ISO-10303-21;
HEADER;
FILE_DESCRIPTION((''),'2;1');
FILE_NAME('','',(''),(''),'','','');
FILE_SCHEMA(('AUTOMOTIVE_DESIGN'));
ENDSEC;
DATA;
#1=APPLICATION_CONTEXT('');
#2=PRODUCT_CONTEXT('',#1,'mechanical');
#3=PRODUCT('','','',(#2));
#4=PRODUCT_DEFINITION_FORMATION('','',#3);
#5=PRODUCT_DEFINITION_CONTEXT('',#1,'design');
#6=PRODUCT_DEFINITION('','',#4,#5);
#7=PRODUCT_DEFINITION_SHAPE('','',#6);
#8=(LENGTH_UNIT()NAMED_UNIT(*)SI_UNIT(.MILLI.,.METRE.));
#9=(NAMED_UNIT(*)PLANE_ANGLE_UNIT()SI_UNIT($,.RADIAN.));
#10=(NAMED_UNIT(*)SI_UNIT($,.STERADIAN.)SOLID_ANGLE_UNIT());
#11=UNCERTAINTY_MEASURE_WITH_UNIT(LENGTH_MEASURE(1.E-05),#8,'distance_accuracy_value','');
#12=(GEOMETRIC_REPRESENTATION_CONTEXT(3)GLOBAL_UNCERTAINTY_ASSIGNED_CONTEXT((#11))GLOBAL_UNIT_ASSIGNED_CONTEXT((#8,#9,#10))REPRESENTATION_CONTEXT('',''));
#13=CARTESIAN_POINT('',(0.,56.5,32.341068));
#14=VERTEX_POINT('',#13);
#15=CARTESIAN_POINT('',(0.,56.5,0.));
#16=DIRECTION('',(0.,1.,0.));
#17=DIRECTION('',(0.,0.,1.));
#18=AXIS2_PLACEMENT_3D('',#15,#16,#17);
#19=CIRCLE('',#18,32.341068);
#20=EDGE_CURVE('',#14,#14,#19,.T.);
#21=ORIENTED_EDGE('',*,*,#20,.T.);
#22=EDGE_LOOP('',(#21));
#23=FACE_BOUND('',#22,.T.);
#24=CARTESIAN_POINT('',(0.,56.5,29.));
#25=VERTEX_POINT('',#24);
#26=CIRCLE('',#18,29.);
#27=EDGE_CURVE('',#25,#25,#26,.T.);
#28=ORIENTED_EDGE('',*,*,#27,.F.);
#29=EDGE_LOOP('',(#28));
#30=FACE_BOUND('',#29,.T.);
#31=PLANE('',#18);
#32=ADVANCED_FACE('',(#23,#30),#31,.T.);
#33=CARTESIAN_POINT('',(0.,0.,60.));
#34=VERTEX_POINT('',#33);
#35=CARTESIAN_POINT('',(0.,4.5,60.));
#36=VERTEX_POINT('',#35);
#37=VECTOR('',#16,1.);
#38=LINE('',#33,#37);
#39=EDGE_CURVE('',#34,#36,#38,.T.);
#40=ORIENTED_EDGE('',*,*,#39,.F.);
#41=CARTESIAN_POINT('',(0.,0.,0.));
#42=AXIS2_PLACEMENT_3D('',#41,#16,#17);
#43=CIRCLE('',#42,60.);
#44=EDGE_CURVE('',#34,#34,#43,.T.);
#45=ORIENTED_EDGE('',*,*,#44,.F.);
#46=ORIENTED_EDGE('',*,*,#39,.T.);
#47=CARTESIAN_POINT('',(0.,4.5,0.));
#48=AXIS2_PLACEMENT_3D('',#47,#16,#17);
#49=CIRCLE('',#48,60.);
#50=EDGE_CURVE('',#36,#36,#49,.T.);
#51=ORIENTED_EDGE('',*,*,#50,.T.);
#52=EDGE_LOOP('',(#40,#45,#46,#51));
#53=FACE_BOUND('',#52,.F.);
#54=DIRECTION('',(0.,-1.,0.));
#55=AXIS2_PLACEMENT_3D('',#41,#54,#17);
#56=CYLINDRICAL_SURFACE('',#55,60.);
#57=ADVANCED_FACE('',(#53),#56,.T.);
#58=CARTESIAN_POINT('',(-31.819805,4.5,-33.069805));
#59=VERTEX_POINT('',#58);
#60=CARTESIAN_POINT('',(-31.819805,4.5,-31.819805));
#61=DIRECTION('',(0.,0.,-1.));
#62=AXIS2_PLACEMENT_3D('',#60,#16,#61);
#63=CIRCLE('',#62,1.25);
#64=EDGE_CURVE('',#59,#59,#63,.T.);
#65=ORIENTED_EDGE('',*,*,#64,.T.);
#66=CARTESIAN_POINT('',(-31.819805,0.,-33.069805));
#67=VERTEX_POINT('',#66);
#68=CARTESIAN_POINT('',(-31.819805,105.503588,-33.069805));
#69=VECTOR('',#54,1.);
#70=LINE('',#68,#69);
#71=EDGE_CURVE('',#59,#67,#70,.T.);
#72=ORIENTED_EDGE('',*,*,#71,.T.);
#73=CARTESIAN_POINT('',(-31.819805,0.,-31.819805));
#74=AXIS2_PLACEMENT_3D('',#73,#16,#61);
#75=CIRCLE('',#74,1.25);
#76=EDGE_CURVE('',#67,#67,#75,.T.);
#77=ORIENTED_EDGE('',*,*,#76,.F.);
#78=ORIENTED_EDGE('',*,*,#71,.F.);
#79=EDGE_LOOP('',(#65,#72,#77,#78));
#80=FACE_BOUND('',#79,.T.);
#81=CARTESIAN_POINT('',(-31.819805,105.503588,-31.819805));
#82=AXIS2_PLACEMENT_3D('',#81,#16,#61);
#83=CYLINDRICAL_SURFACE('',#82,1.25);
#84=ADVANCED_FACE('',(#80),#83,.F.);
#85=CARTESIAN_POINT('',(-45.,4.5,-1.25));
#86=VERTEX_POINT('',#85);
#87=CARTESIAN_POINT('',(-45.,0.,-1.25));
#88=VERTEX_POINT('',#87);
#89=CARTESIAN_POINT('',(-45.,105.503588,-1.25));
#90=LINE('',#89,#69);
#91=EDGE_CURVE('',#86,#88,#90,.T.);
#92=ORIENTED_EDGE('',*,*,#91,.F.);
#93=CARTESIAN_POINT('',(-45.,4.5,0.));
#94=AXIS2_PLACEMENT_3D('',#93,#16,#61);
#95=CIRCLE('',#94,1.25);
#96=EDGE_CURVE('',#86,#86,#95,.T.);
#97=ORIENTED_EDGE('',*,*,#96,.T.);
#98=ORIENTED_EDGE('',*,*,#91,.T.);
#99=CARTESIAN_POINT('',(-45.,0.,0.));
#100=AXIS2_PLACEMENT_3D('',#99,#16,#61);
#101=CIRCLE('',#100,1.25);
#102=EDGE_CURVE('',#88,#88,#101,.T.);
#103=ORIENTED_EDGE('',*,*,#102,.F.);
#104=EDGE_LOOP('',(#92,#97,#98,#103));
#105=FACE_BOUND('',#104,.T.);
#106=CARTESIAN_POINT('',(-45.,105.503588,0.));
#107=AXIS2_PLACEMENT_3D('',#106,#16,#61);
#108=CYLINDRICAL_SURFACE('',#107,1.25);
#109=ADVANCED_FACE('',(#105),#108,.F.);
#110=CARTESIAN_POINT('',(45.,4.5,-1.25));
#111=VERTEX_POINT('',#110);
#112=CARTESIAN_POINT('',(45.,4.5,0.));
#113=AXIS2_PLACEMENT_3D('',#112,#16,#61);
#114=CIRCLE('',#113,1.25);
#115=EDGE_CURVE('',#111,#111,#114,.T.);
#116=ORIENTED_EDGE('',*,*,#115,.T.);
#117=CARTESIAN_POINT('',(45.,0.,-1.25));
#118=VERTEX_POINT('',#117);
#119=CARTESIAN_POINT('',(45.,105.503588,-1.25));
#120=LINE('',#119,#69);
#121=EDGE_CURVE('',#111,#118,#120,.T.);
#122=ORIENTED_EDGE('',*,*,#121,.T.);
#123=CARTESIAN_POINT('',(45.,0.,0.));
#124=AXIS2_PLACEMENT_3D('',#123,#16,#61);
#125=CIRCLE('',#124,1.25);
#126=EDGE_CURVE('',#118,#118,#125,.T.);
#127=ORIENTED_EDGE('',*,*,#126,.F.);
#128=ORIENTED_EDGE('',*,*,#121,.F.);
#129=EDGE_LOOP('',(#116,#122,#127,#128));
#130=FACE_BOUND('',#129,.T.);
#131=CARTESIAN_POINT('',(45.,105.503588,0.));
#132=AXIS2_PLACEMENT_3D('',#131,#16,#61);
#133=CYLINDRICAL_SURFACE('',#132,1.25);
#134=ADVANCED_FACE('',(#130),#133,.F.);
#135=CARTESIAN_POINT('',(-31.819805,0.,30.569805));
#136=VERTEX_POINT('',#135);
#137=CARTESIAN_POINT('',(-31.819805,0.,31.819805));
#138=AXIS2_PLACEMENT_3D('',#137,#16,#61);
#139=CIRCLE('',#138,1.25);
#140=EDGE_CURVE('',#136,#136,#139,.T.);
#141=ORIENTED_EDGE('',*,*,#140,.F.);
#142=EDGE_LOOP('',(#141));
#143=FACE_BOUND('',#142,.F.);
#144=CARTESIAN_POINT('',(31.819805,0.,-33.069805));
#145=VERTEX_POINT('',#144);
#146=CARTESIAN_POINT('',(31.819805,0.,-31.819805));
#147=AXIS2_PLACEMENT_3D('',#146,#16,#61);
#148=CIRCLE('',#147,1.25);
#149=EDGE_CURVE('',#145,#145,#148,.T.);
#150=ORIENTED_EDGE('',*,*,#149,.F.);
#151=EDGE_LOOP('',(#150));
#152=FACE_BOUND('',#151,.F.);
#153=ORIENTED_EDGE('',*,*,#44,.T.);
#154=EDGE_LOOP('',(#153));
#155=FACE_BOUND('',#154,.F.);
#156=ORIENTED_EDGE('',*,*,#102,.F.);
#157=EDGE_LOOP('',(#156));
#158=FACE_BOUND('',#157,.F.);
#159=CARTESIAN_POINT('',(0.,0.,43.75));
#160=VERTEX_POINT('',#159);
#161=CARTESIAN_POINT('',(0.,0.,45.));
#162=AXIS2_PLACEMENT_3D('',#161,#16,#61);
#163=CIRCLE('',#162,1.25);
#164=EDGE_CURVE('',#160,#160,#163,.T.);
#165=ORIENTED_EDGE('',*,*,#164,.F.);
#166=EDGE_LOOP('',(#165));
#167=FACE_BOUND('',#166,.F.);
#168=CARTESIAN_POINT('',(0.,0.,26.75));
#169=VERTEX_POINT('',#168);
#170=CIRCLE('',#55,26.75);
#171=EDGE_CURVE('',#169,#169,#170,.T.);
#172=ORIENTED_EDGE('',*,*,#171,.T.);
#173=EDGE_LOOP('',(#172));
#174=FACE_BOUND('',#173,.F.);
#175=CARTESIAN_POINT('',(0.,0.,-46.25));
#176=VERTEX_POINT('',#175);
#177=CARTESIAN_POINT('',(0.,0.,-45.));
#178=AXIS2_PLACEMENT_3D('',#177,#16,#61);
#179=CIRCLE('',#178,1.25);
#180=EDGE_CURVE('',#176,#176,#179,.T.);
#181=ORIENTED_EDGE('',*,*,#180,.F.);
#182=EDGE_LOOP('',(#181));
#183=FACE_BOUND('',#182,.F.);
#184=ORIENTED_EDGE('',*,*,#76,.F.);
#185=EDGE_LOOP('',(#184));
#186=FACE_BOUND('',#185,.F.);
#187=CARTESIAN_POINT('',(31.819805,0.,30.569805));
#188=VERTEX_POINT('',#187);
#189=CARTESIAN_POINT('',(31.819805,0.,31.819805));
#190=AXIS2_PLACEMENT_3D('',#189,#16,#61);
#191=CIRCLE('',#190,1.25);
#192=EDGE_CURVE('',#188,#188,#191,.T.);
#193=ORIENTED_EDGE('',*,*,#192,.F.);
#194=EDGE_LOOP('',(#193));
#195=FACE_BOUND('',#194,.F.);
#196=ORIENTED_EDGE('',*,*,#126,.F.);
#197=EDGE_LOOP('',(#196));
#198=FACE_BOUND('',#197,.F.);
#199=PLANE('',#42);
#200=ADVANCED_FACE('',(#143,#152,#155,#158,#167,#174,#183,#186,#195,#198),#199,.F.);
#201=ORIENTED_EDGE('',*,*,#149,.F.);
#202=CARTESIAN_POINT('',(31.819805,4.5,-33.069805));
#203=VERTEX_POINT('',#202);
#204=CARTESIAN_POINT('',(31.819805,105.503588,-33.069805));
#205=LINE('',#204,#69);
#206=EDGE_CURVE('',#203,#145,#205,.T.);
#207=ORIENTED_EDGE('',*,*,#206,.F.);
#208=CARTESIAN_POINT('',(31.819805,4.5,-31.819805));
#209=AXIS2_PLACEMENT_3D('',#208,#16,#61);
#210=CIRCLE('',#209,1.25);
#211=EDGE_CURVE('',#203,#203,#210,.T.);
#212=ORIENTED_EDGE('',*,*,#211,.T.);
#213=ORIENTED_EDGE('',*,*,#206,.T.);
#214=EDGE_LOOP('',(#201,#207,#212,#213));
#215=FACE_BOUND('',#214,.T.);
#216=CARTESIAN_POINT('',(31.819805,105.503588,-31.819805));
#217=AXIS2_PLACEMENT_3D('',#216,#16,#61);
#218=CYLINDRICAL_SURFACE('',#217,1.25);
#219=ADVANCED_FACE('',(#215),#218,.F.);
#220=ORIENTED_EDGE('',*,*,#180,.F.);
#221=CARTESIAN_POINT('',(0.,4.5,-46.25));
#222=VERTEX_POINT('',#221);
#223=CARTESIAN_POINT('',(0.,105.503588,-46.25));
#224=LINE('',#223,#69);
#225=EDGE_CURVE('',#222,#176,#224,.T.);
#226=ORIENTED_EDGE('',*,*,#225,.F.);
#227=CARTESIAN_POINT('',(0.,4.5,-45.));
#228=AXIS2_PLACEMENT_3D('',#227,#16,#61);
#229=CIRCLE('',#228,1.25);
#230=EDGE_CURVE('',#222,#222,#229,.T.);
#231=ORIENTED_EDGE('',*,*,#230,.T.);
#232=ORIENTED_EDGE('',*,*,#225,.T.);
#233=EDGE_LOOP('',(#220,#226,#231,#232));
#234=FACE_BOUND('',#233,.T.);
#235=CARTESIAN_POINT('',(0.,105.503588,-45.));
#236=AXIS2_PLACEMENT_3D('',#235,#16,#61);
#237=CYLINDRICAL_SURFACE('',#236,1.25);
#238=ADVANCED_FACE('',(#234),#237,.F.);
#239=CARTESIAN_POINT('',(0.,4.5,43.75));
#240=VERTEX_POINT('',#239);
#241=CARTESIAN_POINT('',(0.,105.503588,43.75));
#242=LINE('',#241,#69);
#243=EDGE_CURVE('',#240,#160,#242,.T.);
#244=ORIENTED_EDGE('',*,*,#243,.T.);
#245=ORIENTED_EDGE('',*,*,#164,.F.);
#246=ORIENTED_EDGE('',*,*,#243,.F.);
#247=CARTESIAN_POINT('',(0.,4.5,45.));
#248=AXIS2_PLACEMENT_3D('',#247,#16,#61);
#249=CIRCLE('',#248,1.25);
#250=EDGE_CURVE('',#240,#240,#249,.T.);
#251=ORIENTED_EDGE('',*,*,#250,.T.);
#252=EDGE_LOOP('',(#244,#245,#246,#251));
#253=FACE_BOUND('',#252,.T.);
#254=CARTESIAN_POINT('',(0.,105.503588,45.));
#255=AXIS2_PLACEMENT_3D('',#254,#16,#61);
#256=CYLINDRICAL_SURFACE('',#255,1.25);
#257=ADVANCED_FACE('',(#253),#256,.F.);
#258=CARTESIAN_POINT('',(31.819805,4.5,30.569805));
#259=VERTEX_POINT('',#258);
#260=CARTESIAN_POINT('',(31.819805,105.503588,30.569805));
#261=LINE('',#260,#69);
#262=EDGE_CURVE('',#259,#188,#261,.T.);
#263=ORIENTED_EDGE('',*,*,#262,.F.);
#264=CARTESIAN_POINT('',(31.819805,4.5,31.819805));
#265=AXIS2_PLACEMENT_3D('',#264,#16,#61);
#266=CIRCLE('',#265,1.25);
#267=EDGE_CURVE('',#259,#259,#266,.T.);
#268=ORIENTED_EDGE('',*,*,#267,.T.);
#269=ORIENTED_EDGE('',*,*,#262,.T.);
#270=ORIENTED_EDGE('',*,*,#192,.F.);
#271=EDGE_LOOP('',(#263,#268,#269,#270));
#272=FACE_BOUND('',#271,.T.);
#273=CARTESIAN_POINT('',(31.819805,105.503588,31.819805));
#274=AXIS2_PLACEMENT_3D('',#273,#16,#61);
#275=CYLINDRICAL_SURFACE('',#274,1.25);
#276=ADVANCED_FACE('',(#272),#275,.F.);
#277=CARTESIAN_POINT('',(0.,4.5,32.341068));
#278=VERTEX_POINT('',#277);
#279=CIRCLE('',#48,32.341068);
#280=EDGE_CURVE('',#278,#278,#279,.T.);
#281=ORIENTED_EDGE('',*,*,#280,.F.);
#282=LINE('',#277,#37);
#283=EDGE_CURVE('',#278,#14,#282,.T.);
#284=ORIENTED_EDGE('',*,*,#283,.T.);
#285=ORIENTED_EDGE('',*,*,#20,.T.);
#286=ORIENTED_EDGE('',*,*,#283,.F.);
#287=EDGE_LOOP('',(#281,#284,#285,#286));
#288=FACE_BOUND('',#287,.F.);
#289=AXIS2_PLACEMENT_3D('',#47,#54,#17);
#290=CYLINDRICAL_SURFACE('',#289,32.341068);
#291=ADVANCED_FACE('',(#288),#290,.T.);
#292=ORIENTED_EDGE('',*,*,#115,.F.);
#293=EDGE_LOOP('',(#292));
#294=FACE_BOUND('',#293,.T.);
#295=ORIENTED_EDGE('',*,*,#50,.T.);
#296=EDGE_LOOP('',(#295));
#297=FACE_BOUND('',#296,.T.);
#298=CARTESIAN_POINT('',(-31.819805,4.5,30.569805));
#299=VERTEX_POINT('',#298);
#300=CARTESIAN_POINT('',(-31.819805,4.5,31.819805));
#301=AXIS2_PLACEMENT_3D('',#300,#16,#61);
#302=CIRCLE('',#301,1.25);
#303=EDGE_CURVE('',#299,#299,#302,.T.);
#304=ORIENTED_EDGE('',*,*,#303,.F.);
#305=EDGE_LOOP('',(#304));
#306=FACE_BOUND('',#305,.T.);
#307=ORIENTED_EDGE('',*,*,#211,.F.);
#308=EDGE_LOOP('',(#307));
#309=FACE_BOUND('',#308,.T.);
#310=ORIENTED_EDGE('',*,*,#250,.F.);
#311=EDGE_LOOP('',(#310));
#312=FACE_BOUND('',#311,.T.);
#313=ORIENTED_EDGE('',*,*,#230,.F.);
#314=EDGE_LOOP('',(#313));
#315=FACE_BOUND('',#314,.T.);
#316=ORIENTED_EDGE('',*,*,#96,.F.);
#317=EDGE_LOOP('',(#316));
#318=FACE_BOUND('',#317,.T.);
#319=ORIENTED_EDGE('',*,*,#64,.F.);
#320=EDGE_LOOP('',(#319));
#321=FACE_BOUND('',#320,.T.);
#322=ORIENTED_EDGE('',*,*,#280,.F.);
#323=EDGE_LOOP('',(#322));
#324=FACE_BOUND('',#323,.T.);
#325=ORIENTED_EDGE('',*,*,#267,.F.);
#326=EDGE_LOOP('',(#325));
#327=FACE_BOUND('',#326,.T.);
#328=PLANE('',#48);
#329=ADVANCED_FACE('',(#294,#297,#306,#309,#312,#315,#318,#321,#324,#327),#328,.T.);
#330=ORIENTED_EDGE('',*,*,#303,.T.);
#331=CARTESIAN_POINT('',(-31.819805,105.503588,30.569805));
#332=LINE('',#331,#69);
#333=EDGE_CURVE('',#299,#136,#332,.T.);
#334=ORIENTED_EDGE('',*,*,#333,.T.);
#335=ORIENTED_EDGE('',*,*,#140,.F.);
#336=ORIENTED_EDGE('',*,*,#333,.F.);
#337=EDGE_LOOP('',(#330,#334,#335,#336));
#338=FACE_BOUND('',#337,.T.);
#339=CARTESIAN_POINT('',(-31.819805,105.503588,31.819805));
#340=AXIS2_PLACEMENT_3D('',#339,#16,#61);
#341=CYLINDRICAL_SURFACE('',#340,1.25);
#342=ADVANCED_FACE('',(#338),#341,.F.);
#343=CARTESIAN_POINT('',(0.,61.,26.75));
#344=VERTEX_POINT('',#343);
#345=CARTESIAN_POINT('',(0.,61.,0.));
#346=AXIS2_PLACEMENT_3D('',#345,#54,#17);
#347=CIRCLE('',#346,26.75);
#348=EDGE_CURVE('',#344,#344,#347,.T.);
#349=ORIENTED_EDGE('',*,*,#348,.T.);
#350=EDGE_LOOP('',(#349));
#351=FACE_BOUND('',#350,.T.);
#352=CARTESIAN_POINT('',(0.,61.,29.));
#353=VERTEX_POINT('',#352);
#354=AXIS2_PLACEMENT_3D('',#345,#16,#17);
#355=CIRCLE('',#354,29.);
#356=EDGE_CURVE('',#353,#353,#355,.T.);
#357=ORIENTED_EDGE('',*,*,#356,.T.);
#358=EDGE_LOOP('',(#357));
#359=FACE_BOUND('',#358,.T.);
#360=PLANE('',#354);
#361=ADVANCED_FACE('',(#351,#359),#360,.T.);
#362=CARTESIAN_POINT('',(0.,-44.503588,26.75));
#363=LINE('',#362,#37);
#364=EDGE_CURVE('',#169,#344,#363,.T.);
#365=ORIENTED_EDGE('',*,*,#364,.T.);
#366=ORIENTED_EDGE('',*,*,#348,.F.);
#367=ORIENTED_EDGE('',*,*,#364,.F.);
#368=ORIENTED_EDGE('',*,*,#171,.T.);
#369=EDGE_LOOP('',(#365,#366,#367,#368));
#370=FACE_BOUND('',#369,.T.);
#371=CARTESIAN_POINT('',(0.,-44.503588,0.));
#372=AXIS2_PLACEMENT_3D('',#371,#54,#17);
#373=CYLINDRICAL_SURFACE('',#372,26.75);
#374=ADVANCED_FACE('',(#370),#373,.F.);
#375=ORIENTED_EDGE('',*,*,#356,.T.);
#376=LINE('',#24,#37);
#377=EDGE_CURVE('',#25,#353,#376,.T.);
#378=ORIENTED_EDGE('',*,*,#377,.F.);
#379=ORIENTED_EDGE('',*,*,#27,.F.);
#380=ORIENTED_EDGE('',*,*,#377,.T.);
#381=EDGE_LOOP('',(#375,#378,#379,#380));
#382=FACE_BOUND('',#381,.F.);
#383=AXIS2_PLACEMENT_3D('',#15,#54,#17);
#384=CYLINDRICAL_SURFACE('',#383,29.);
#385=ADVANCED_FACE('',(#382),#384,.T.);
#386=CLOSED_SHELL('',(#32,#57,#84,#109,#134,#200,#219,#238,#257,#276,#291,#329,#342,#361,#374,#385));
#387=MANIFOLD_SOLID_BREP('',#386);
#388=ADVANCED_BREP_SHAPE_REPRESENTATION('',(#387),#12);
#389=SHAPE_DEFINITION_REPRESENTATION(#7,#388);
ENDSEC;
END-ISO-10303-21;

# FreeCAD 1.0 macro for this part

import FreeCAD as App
import Part
import Sketcher

V = App.Vector

doc = App.newDocument("Part")
body = doc.addObject("PartDesign::Body", "Body")

sketch1 = body.newObject("Sketcher::SketchObject", "Sketch")
sketch1.AttachmentSupport = (doc.getObject("XZ_Plane"), [""])
sketch1.MapMode = "FlatFace"
sketch1.addGeometry(Part.Circle(V(0, 0, 0), V(0, 0, 1), 60), False)
sketch1.addConstraint([
    Sketcher.Constraint("Coincident", 0, 3, -1, 1),
    Sketcher.Constraint("Diameter", 0, 120.0),
])
pad1 = body.newObject("PartDesign::Pad", "Pad")
pad1.Profile = sketch1
pad1.Length = 4.5
pad1.Reversed = True

sketch2 = body.newObject("Sketcher::SketchObject", "Sketch001")
sketch2.AttachmentSupport = (doc.getObject("XZ_Plane"), [""])
sketch2.MapMode = "FlatFace"
sketch2.AttachmentOffset = App.Placement(V(0, 0, -4.5), App.Rotation())
sketch2.addGeometry(Part.Circle(V(0, 0, 0), V(0, 0, 1), 29.275), False)
sketch2.addConstraint([
    Sketcher.Constraint("Coincident", 0, 3, -1, 1),
    Sketcher.Constraint("Diameter", 0, 58.55),
])
pad2 = body.newObject("PartDesign::Pad", "Pad001")
pad2.Profile = sketch2
pad2.Length = 56.5
pad2.Reversed = True

sketch3 = body.newObject("Sketcher::SketchObject", "Sketch002")
sketch3.AttachmentSupport = (doc.getObject("XZ_Plane"), [""])
sketch3.MapMode = "FlatFace"
sketch3.AttachmentOffset = App.Placement(V(0, 0, -61), App.Rotation())
sketch3.addGeometry(Part.Circle(V(0, 0, 0), V(0, 0, 1), 26.75), False)
sketch3.addConstraint([
    Sketcher.Constraint("Coincident", 0, 3, -1, 1),
    Sketcher.Constraint("Diameter", 0, 53.5),
])
pocket1 = body.newObject("PartDesign::Pocket", "Pocket")
pocket1.Profile = sketch3
pocket1.Type = "ThroughAll"
pocket1.Midplane = True

sketch4 = body.newObject("Sketcher::SketchObject", "Sketch003")
sketch4.AttachmentSupport = (doc.getObject("XZ_Plane"), [""])
sketch4.MapMode = "FlatFace"
sketch4.AttachmentOffset = App.Placement(V(0, 0, -4.5), App.Rotation())
sketch4.addGeometry([
    Part.Circle(V(0, 0, 0), V(0, 0, 1), 32.341068),
    Part.Circle(V(0, 0, 0), V(0, 0, 1), 29.275),
], False)
sketch4.addConstraint([
    Sketcher.Constraint("Coincident", 0, 3, -1, 1),
    Sketcher.Constraint("Coincident", 1, 3, -1, 1),
    Sketcher.Constraint("Diameter", 1, 58.55),
    Sketcher.Constraint("Diameter", 0, 64.682135),
])
pad3 = body.newObject("PartDesign::Pad", "Pad002")
pad3.Profile = sketch4
pad3.Length = 56.5
pad3.Reversed = True

sketch5 = body.newObject("Sketcher::SketchObject", "Sketch004")
sketch5.AttachmentSupport = (doc.getObject("XZ_Plane"), [""])
sketch5.MapMode = "FlatFace"
sketch5.AttachmentOffset = App.Placement(V(0, 0, -56.5), App.Rotation())
sketch5.addGeometry([
    Part.Circle(V(0, 0, 0), V(0, 0, 1), 32.341068),
    Part.Circle(V(0, 0, 0), V(0, 0, 1), 29),
], False)
sketch5.addConstraint([
    Sketcher.Constraint("Coincident", 0, 3, -1, 1),
    Sketcher.Constraint("Coincident", 1, 3, -1, 1),
    Sketcher.Constraint("Diameter", 1, 58.0),
    Sketcher.Constraint("Diameter", 0, 64.682135),
])
pocket2 = body.newObject("PartDesign::Pocket", "Pocket001")
pocket2.Profile = sketch5
pocket2.Length = 4.5

sketch6 = body.newObject("Sketcher::SketchObject", "Sketch005")
sketch6.AttachmentSupport = (doc.getObject("XZ_Plane"), [""])
sketch6.MapMode = "FlatFace"
sketch6.addGeometry([
    Part.Circle(V(31.819805, -31.819805, 0), V(0, 0, 1), 1.25),
    Part.Circle(V(0, 45, 0), V(0, 0, 1), 1.25),
    Part.Circle(V(31.819805, 31.819805, 0), V(0, 0, 1), 1.25),
    Part.Circle(V(45, 0, 0), V(0, 0, 1), 1.25),
    Part.Circle(V(-31.819805, 31.819805, 0), V(0, 0, 1), 1.25),
    Part.Circle(V(-45, 0, 0), V(0, 0, 1), 1.25),
    Part.Circle(V(-31.819805, -31.819805, 0), V(0, 0, 1), 1.25),
    Part.Circle(V(0, -45, 0), V(0, 0, 1), 1.25),
], False)
sketch6.addConstraint([
    Sketcher.Constraint("Equal", 0, 1),
    Sketcher.Constraint("Equal", 1, 2),
    Sketcher.Constraint("Equal", 2, 3),
    Sketcher.Constraint("Equal", 3, 4),
    Sketcher.Constraint("Equal", 4, 5),
    Sketcher.Constraint("Equal", 5, 6),
    Sketcher.Constraint("Equal", 6, 7),
    Sketcher.Constraint("Symmetric", 0, 3, 4, 3, -1, 1),
    Sketcher.Constraint("Symmetric", 3, 3, 5, 3, -1, 1),
    Sketcher.Constraint("Symmetric", 2, 3, 6, 3, -1, 1),
    Sketcher.Constraint("Symmetric", 1, 3, 7, 3, -1, 1),
    Sketcher.Constraint("Symmetric", 2, 3, 4, 3, -2),
    Sketcher.Constraint("PointOnObject", 1, 3, -2),
    Sketcher.Constraint("PointOnObject", 3, 3, -1),
    Sketcher.Constraint("Diameter", 0, 2.5),
    Sketcher.Constraint("DistanceY", -1, 1, 1, 3, 45.0),
    Sketcher.Constraint("DistanceX", -1, 1, 3, 3, 45.0),
    Sketcher.Constraint("DistanceY", 0, 3, 2, 3, 63.63961),
    Sketcher.Constraint("DistanceX", 4, 3, 2, 3, 63.63961),
])
pocket3 = body.newObject("PartDesign::Pocket", "Pocket002")
pocket3.Profile = sketch6
pocket3.Type = "ThroughAll"
pocket3.Midplane = True

doc.recompute()
